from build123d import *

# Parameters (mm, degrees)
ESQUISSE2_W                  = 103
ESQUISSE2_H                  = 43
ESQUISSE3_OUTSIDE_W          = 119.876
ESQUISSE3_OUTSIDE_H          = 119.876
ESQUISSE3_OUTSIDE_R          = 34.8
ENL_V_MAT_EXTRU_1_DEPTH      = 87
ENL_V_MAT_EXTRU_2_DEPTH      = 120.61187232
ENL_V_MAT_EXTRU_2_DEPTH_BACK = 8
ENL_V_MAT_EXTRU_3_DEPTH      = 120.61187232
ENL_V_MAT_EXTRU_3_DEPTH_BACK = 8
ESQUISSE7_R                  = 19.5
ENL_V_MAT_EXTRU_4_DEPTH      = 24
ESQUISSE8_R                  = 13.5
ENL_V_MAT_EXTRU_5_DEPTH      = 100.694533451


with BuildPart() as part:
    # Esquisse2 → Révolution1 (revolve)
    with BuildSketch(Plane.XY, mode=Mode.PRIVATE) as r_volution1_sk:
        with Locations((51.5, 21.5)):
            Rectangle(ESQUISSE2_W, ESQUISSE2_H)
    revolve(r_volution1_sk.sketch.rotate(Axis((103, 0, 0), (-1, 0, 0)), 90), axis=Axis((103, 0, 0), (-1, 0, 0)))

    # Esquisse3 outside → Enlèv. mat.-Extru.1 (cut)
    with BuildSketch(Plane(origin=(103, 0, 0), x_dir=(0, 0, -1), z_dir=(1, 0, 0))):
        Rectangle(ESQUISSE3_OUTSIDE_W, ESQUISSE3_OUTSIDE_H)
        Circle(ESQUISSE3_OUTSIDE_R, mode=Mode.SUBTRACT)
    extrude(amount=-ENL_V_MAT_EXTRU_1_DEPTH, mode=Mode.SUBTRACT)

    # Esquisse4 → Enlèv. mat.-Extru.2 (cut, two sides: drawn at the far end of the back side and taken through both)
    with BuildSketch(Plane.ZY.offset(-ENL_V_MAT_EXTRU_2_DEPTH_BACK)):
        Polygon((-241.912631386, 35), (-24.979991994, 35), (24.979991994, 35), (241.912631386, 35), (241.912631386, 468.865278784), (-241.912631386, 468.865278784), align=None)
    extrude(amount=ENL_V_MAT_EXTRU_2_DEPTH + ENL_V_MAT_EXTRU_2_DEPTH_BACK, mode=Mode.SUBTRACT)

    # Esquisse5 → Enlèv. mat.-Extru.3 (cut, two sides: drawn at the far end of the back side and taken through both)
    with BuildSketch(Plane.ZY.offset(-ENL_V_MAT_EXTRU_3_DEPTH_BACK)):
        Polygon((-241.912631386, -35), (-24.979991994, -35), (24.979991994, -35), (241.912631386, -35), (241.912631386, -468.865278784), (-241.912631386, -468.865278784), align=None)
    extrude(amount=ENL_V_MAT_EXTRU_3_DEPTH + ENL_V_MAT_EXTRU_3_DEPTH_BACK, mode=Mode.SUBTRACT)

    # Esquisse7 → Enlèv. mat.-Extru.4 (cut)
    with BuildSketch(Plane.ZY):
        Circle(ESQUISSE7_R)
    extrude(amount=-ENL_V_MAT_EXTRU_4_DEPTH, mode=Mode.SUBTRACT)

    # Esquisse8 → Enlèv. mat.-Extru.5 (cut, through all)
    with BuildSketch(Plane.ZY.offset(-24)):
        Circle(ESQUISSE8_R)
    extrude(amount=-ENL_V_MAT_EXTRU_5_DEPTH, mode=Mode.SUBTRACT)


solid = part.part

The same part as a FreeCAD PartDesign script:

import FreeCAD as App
import Part
import Sketcher
from FreeCAD import Vector
Q = App.Units.Quantity


def add_polygon(sketch, points):
    """Adds a closed chain of lines whose ends are joined by coincident constraints."""
    first, n = sketch.GeometryCount, len(points)
    for a, b in zip(points, points[1:] + points[:1]):
        sketch.addGeometry(Part.LineSegment(App.Vector(*a, 0), App.Vector(*b, 0)), False)
    for i in range(n):
        sketch.addConstraint(Sketcher.Constraint("Coincident", first + i, 2, first + (i + 1) % n, 1))

doc = App.newDocument("Part")
body = doc.addObject("PartDesign::Body", "Body")

sketch1 = doc.addObject("Sketcher::SketchObject", "Sketch")
body.addObject(sketch1)
sketch1.AttachmentSupport = (doc.XY_Plane, [""])
sketch1.MapMode = "FlatFace"
add_polygon(sketch1, [(0, 43), (0, 0), (103, 0), (103, 43)])
sketch1.addConstraint(Sketcher.Constraint("Vertical", 0))
sketch1.addConstraint(Sketcher.Constraint("Horizontal", 1))
sketch1.addConstraint(Sketcher.Constraint("Vertical", 2))
sketch1.addConstraint(Sketcher.Constraint("Horizontal", 3))
sketch1.addConstraint(Sketcher.Constraint("Coincident", 0, 2, -1, 1))
sketch1.addConstraint(Sketcher.Constraint("DistanceX", 1, 1, 1, 2, Q("103 mm")))
sketch1.addConstraint(Sketcher.Constraint("DistanceY", 0, 2, 0, 1, Q("43 mm")))
revolution = doc.addObject("PartDesign::Revolution", "Revolution")
body.addObject(revolution)
revolution.Profile = sketch1
revolution.ReferenceAxis = (sketch1, ["H_Axis"])
revolution.Angle = 360

sketch2 = doc.addObject("Sketcher::SketchObject", "Sketch001")
body.addObject(sketch2)
sketch2.AttachmentSupport = (doc.YZ_Plane, [""])
sketch2.MapMode = "FlatFace"
sketch2.AttachmentOffset = App.Placement(Vector(0, 0, 103), App.Rotation())
add_polygon(sketch2, [(60, 60), (-60, 60), (-60, -60), (60, -60)])
sketch2.addGeometry(Part.Circle(Vector(0, 0, 0), Vector(0, 0, 1), 35), False)
sketch2.addConstraint(Sketcher.Constraint("Horizontal", 0))
sketch2.addConstraint(Sketcher.Constraint("Vertical", 1))
sketch2.addConstraint(Sketcher.Constraint("Horizontal", 2))
sketch2.addConstraint(Sketcher.Constraint("Vertical", 3))
sketch2.addConstraint(Sketcher.Constraint("Coincident", 4, 3, -1, 1))
sketch2.addConstraint(Sketcher.Constraint("Symmetric", 0, 2, 2, 2, -1, 1))
sketch2.addConstraint(Sketcher.Constraint("Equal", 2, 1))
sketch2.addConstraint(Sketcher.Constraint("Diameter", 4, Q("69.6 mm")))
sketch2.addConstraint(Sketcher.Constraint("DistanceX", 0, 2, 0, 1, Q("119.876 mm")))
pocket1 = doc.addObject("PartDesign::Pocket", "Pocket")
body.addObject(pocket1)
pocket1.Profile = sketch2
pocket1.Length = 87

sketch3 = doc.addObject("Sketcher::SketchObject", "Sketch002")
body.addObject(sketch3)
sketch3.AttachmentSupport = (doc.YZ_Plane, [""])
sketch3.MapMode = "FlatFace"
add_polygon(sketch3, [(35, -242), (35, 242), (469, 242), (469, -242)])
sketch3.addConstraint(Sketcher.Constraint("Vertical", 0))
sketch3.addConstraint(Sketcher.Constraint("Horizontal", 1))
sketch3.addConstraint(Sketcher.Constraint("Vertical", 2))
sketch3.addConstraint(Sketcher.Constraint("Horizontal", 3))
sketch3.addConstraint(Sketcher.Constraint("DistanceX", -1, 1, 0, 2, Q("35 mm")))
sketch3.addConstraint(Sketcher.Constraint("DistanceX", 1, 1, 1, 2, Q("433.865279 mm")))
sketch3.addConstraint(Sketcher.Constraint("DistanceY", 0, 1, 0, 2, Q("483.825263 mm")))
sketch3.addConstraint(Sketcher.Constraint("DistanceY", -1, 1, 0, 2, Q("241.912631 mm")))
pocket2 = doc.addObject("PartDesign::Pocket", "Pocket001")
body.addObject(pocket2)
pocket2.Profile = sketch3
pocket2.Type = "TwoLengths"
pocket2.Length = 120.611872
pocket2.Length2 = 8

sketch4 = doc.addObject("Sketcher::SketchObject", "Sketch003")
body.addObject(sketch4)
sketch4.AttachmentSupport = (doc.YZ_Plane, [""])
sketch4.MapMode = "FlatFace"
add_polygon(sketch4, [(-35, 242), (-35, -242), (-469, -242), (-469, 242)])
sketch4.addConstraint(Sketcher.Constraint("Vertical", 0))
sketch4.addConstraint(Sketcher.Constraint("Horizontal", 1))
sketch4.addConstraint(Sketcher.Constraint("Vertical", 2))
sketch4.addConstraint(Sketcher.Constraint("Horizontal", 3))
sketch4.addConstraint(Sketcher.Constraint("DistanceX", 0, 2, -1, 1, Q("35 mm")))
sketch4.addConstraint(Sketcher.Constraint("DistanceX", 1, 2, 1, 1, Q("433.865279 mm")))
sketch4.addConstraint(Sketcher.Constraint("DistanceY", 0, 2, 0, 1, Q("483.825263 mm")))
sketch4.addConstraint(Sketcher.Constraint("DistanceY", 0, 2, -1, 1, Q("241.912631 mm")))
pocket3 = doc.addObject("PartDesign::Pocket", "Pocket002")
body.addObject(pocket3)
pocket3.Profile = sketch4
pocket3.Type = "TwoLengths"
pocket3.Length = 120.611872
pocket3.Length2 = 8

sketch5 = doc.addObject("Sketcher::SketchObject", "Sketch004")
body.addObject(sketch5)
sketch5.AttachmentSupport = (doc.YZ_Plane, [""])
sketch5.MapMode = "FlatFace"
sketch5.addGeometry(Part.Circle(Vector(0, 0, 0), Vector(0, 0, 1), 20), False)
sketch5.addConstraint(Sketcher.Constraint("Coincident", 0, 3, -1, 1))
sketch5.addConstraint(Sketcher.Constraint("Diameter", 0, Q("39 mm")))
pocket4 = doc.addObject("PartDesign::Pocket", "Pocket003")
body.addObject(pocket4)
pocket4.Profile = sketch5
pocket4.Length = 24
pocket4.Reversed = True

sketch6 = doc.addObject("Sketcher::SketchObject", "Sketch005")
body.addObject(sketch6)
sketch6.AttachmentSupport = (doc.YZ_Plane, [""])
sketch6.MapMode = "FlatFace"
sketch6.AttachmentOffset = App.Placement(Vector(0, 0, 24), App.Rotation())
sketch6.addGeometry(Part.Circle(Vector(0, 0, 0), Vector(0, 0, 1), 14), False)
sketch6.addConstraint(Sketcher.Constraint("Coincident", 0, 3, -1, 1))
sketch6.addConstraint(Sketcher.Constraint("Diameter", 0, Q("27 mm")))
pocket5 = doc.addObject("PartDesign::Pocket", "Pocket004")
body.addObject(pocket5)
pocket5.Profile = sketch6
pocket5.Type = "ThroughAll"
pocket5.Reversed = True

doc.recompute()
